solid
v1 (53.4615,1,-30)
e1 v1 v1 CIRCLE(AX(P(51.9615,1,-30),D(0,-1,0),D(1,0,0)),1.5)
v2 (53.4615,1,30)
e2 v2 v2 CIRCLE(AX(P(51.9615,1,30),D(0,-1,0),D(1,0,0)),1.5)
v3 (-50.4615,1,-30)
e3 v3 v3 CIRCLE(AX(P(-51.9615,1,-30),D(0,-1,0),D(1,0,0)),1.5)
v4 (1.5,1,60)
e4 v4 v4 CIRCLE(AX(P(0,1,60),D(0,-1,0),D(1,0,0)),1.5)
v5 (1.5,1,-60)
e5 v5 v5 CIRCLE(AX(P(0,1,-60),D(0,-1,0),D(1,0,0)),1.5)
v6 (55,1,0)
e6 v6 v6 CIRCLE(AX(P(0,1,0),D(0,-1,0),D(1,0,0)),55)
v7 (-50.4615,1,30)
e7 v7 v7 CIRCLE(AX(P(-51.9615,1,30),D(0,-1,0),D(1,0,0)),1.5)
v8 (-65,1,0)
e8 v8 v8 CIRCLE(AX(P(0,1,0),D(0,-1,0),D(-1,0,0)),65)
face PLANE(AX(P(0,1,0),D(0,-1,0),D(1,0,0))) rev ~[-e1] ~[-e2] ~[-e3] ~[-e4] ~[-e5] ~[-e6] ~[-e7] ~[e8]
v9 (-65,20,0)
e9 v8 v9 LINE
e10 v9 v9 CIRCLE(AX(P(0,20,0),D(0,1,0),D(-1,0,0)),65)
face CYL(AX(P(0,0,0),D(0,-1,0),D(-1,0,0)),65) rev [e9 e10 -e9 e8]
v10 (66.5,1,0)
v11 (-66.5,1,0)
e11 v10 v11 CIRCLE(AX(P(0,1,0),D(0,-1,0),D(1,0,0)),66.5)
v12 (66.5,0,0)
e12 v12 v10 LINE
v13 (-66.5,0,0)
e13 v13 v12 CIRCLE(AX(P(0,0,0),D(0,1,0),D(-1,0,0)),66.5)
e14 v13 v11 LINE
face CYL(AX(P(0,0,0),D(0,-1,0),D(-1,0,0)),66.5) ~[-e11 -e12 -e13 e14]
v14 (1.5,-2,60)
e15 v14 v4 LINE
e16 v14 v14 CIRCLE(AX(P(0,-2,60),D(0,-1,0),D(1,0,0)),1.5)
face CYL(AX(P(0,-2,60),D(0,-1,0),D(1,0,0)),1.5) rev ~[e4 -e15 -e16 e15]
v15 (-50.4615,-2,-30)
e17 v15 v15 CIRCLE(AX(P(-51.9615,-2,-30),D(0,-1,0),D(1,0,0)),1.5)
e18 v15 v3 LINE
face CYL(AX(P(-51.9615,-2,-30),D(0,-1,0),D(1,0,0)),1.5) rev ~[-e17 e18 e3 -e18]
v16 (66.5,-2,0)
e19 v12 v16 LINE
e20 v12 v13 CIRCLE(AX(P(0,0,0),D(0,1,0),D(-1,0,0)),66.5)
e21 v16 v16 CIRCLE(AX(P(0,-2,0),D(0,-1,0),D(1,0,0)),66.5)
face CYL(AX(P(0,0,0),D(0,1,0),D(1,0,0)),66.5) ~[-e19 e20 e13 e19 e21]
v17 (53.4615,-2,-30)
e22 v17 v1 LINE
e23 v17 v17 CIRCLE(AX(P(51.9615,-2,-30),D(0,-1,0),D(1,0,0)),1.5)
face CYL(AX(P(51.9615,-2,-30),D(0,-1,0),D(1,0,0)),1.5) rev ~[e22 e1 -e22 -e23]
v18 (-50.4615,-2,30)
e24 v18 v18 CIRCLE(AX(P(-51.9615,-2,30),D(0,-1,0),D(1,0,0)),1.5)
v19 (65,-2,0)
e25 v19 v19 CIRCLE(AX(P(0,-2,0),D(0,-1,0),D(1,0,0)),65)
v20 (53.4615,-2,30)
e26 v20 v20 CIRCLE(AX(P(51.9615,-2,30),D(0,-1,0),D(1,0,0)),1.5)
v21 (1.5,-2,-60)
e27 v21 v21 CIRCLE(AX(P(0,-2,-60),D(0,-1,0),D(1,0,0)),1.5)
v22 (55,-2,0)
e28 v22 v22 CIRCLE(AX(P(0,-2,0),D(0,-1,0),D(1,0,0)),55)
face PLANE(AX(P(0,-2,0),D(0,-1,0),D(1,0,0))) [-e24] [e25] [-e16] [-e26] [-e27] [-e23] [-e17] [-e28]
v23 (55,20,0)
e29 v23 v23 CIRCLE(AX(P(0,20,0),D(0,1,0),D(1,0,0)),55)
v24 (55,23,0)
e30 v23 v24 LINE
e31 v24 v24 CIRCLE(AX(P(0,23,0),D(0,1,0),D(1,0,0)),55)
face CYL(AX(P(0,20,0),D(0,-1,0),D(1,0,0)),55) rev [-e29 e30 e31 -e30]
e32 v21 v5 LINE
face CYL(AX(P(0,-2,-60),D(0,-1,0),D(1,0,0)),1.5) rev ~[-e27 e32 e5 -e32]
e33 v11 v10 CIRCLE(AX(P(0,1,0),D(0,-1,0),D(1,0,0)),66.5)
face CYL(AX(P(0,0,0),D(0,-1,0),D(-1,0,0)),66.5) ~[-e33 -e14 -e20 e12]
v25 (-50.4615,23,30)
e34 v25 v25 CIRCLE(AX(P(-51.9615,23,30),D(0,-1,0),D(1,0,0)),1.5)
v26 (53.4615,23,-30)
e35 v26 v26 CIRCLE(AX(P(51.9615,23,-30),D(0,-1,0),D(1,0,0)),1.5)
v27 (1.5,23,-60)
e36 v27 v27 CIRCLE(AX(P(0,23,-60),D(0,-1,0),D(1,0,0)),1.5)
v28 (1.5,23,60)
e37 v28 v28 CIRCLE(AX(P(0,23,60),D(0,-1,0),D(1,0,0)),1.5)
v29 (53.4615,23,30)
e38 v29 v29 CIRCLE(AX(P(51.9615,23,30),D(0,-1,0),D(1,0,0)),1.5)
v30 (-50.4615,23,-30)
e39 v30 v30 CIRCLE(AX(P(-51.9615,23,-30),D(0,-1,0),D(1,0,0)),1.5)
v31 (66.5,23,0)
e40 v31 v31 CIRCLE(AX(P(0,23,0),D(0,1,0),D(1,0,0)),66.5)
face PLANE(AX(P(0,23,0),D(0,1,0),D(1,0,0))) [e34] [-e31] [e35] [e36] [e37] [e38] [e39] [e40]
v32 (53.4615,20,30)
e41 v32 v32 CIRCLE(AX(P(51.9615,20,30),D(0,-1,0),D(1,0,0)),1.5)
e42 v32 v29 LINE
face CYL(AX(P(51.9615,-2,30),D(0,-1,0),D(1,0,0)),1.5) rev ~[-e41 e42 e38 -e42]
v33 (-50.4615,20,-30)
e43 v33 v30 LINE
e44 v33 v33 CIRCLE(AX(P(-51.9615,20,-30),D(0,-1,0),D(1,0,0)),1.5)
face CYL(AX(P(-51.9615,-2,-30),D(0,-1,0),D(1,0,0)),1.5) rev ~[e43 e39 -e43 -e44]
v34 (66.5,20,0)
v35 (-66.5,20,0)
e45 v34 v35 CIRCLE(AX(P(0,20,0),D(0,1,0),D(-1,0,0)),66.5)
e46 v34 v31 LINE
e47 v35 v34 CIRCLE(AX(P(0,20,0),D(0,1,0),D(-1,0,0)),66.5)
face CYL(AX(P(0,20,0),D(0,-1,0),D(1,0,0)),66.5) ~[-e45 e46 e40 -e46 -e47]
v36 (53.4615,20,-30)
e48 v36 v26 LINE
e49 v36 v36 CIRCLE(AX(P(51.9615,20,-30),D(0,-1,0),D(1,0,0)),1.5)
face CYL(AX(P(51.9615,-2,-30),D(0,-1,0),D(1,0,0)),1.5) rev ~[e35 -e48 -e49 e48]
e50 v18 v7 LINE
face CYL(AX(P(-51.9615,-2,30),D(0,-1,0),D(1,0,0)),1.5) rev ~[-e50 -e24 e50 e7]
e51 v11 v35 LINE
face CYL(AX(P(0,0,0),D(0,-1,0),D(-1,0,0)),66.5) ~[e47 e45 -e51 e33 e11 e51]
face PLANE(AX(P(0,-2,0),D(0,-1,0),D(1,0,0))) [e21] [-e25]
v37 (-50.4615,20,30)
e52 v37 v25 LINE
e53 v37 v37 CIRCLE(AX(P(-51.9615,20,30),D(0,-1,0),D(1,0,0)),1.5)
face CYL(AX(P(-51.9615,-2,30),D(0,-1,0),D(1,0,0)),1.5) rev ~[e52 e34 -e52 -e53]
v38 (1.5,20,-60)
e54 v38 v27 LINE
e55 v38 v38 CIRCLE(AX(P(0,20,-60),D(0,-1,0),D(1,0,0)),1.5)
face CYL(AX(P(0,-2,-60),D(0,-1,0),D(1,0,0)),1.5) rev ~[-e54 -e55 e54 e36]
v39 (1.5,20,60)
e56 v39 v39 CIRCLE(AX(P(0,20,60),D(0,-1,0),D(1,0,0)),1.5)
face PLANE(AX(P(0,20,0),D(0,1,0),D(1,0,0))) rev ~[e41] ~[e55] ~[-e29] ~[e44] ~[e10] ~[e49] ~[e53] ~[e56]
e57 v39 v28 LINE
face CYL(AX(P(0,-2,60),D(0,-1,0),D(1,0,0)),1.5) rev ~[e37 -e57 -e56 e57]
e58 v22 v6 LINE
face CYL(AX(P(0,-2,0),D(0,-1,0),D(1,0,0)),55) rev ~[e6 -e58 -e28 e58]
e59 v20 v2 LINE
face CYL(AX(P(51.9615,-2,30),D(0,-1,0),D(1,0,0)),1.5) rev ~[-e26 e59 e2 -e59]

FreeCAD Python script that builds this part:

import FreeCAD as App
import Part
import Sketcher
Q = App.Units.Quantity

doc = App.newDocument("Part")
params = doc.addObject("Spreadsheet::Sheet", "Params")
for row, (alias, value) in enumerate([
    ("sketch1_diameter", "133 mm"),
    ("sketch1_diameter2", "130 mm"),
    ("pad1_length", "20 mm"),
    ("sketch2_diameter", "3 mm"),
    ("pocket1_length", "3 mm"),
    ("sketch3_diameter", "130 mm"),
    ("sketch3_diameter2", "133 mm"),
    ("pad2_length", "2 mm"),
    ("sketch4_diameter", "133 mm"),
    ("sketch4_diameter2", "110 mm"),
    ("pad3_length", "3 mm"),
    ("sketch5_diameter", "133 mm"),
    ("sketch5_diameter2", "110 mm"),
    ("pad4_length", "3 mm"),
    ("sketch6_diameter", "3 mm"),
    ("pocket2_length", "1000 mm"),
], start=1):
    params.set(f"A{row}", alias)
    params.set(f"B{row}", "=" + value)
    params.setAlias(f"B{row}", alias)

body = doc.addObject("PartDesign::Body", "Body")

sketch1 = body.newObject("Sketcher::SketchObject", "Sketch")
sketch1.AttachmentSupport = (doc.getObject("XZ_Plane"), [""])
sketch1.MapMode = "FlatFace"
sketch1.addGeometry(Part.Circle(App.Vector(0, 0, 0), App.Vector(0, 0, 1), 66), False)
sketch1.addGeometry(Part.Circle(App.Vector(0, 0, 0), App.Vector(0, 0, 1), 65), False)
sketch1.addConstraint(Sketcher.Constraint("Coincident", 0, 3, -1, 1))
sketch1.addConstraint(Sketcher.Constraint("Coincident", 1, 3, -1, 1))
sketch1.addConstraint(Sketcher.Constraint("Diameter", 0, Q("133 mm")))
sketch1.addConstraint(Sketcher.Constraint("Diameter", 1, Q("130 mm")))
sketch1.setExpression("Constraints[2]", "Params.sketch1_diameter")
sketch1.setExpression("Constraints[3]", "Params.sketch1_diameter2")
pad1 = body.newObject("PartDesign::Pad", "Pad")
pad1.Profile = sketch1
pad1.setExpression("Length", "Params.pad1_length")
pad1.Reversed = True

sketch2 = body.newObject("Sketcher::SketchObject", "Sketch001")
sketch2.AttachmentSupport = (doc.getObject("XZ_Plane"), [""])
sketch2.MapMode = "FlatFace"
sketch2.addGeometry(Part.Circle(App.Vector(0, -8, 0), App.Vector(0, 0, 1), 1.5), False)
sketch2.addGeometry(Part.Circle(App.Vector(0, 8, 0), App.Vector(0, 0, 1), 1.5), False)
sketch2.addGeometry(Part.Circle(App.Vector(9.5, 0, 0), App.Vector(0, 0, 1), 1.5), False)
sketch2.addGeometry(Part.Circle(App.Vector(-9.5, 0, 0), App.Vector(0, 0, 1), 1.5), False)
sketch2.addGeometry(Part.Circle(App.Vector(0, 0, 0), App.Vector(0, 0, 1), 3.5), False)
sketch2.addConstraint(Sketcher.Constraint("Coincident", 4, 3, -1, 1))
sketch2.addConstraint(Sketcher.Constraint("Equal", 0, 1))
sketch2.addConstraint(Sketcher.Constraint("Equal", 1, 2))
sketch2.addConstraint(Sketcher.Constraint("Equal", 2, 3))
sketch2.addConstraint(Sketcher.Constraint("Symmetric", 0, 3, 1, 3, -1, 1))
sketch2.addConstraint(Sketcher.Constraint("Symmetric", 2, 3, 3, 3, -1, 1))
sketch2.addConstraint(Sketcher.Constraint("PointOnObject", 0, 3, -2))
sketch2.addConstraint(Sketcher.Constraint("PointOnObject", 2, 3, -1))
sketch2.addConstraint(Sketcher.Constraint("Diameter", 0, Q("3 mm")))
sketch2.addConstraint(Sketcher.Constraint("DistanceY", 0, 3, -1, 1, Q("8 mm")))
sketch2.addConstraint(Sketcher.Constraint("DistanceX", -1, 1, 2, 3, Q("9.5 mm")))
sketch2.addConstraint(Sketcher.Constraint("Diameter", 4, Q("7.0928 mm")))
sketch2.setExpression("Constraints[8]", "Params.sketch2_diameter")
pocket1 = body.newObject("PartDesign::Pocket", "Pocket")
pocket1.Profile = sketch2
pocket1.setExpression("Length", "Params.pocket1_length")

sketch3 = body.newObject("Sketcher::SketchObject", "Sketch002")
sketch3.AttachmentSupport = (doc.getObject("XZ_Plane"), [""])
sketch3.MapMode = "FlatFace"
sketch3.addGeometry(Part.Circle(App.Vector(0, 0, 0), App.Vector(0, 0, 1), 66), False)
sketch3.addGeometry(Part.Circle(App.Vector(0, 0, 0), App.Vector(0, 0, 1), 65), False)
sketch3.addConstraint(Sketcher.Constraint("Coincident", 0, 3, -1, 1))
sketch3.addConstraint(Sketcher.Constraint("Coincident", 1, 3, -1, 1))
sketch3.addConstraint(Sketcher.Constraint("Diameter", 1, Q("130 mm")))
sketch3.addConstraint(Sketcher.Constraint("Diameter", 0, Q("133 mm")))
sketch3.setExpression("Constraints[2]", "Params.sketch3_diameter")
sketch3.setExpression("Constraints[3]", "Params.sketch3_diameter2")
pad2 = body.newObject("PartDesign::Pad", "Pad001")
pad2.Profile = sketch3
pad2.setExpression("Length", "Params.pad2_length")

sketch4 = body.newObject("Sketcher::SketchObject", "Sketch003")
sketch4.AttachmentSupport = (doc.getObject("XZ_Plane"), [""])
sketch4.MapMode = "FlatFace"
sketch4.AttachmentOffset = App.Placement(App.Vector(0, 0, -20), App.Rotation())
sketch4.addGeometry(Part.Circle(App.Vector(0, 0, 0), App.Vector(0, 0, 1), 66), False)
sketch4.addGeometry(Part.Circle(App.Vector(0, 0, 0), App.Vector(0, 0, 1), 55), False)
sketch4.addConstraint(Sketcher.Constraint("Coincident", 0, 3, -1, 1))
sketch4.addConstraint(Sketcher.Constraint("Coincident", 1, 3, -1, 1))
sketch4.addConstraint(Sketcher.Constraint("Diameter", 0, Q("133 mm")))
sketch4.addConstraint(Sketcher.Constraint("Diameter", 1, Q("110 mm")))
sketch4.setExpression("Constraints[2]", "Params.sketch4_diameter")
sketch4.setExpression("Constraints[3]", "Params.sketch4_diameter2")
pad3 = body.newObject("PartDesign::Pad", "Pad002")
pad3.Profile = sketch4
pad3.setExpression("Length", "Params.pad3_length")
pad3.Reversed = True

sketch5 = body.newObject("Sketcher::SketchObject", "Sketch004")
sketch5.AttachmentSupport = (doc.getObject("XZ_Plane"), [""])
sketch5.MapMode = "FlatFace"
sketch5.AttachmentOffset = App.Placement(App.Vector(0, 0, 2), App.Rotation())
sketch5.addGeometry(Part.Circle(App.Vector(0, 0, 0), App.Vector(0, 0, 1), 66), False)
sketch5.addGeometry(Part.Circle(App.Vector(0, 0, 0), App.Vector(0, 0, 1), 55), False)
sketch5.addConstraint(Sketcher.Constraint("Coincident", 0, 3, -1, 1))
sketch5.addConstraint(Sketcher.Constraint("Coincident", 1, 3, -1, 1))
sketch5.addConstraint(Sketcher.Constraint("Diameter", 0, Q("133 mm")))
sketch5.addConstraint(Sketcher.Constraint("Diameter", 1, Q("110 mm")))
sketch5.setExpression("Constraints[2]", "Params.sketch5_diameter")
sketch5.setExpression("Constraints[3]", "Params.sketch5_diameter2")
pad4 = body.newObject("PartDesign::Pad", "Pad003")
pad4.Profile = sketch5
pad4.setExpression("Length", "Params.pad4_length")
pad4.Reversed = True

sketch6 = body.newObject("Sketcher::SketchObject", "Sketch005")
sketch6.AttachmentSupport = (doc.getObject("XZ_Plane"), [""])
sketch6.MapMode = "FlatFace"
sketch6.AttachmentOffset = App.Placement(App.Vector(0, 0, 2), App.Rotation())
sketch6.addGeometry(Part.Circle(App.Vector(0, -60, 0), App.Vector(0, 0, 1), 1.5), False)
sketch6.addGeometry(Part.Circle(App.Vector(52, -30, 0), App.Vector(0, 0, 1), 1.5), False)
sketch6.addGeometry(Part.Circle(App.Vector(52, 30, 0), App.Vector(0, 0, 1), 1.5), False)
sketch6.addGeometry(Part.Circle(App.Vector(0, 60, 0), App.Vector(0, 0, 1), 1.5), False)
sketch6.addGeometry(Part.Circle(App.Vector(-52, 30, 0), App.Vector(0, 0, 1), 1.5), False)
sketch6.addGeometry(Part.Circle(App.Vector(-52, -30, 0), App.Vector(0, 0, 1), 1.5), False)
sketch6.addConstraint(Sketcher.Constraint("Equal", 0, 1))
sketch6.addConstraint(Sketcher.Constraint("Equal", 1, 2))
sketch6.addConstraint(Sketcher.Constraint("Equal", 2, 3))
sketch6.addConstraint(Sketcher.Constraint("Equal", 3, 4))
sketch6.addConstraint(Sketcher.Constraint("Equal", 4, 5))
sketch6.addConstraint(Sketcher.Constraint("Symmetric", 0, 3, 3, 3, -1, 1))
sketch6.addConstraint(Sketcher.Constraint("Symmetric", 1, 3, 4, 3, -1, 1))
sketch6.addConstraint(Sketcher.Constraint("Symmetric", 2, 3, 5, 3, -1, 1))
sketch6.addConstraint(Sketcher.Constraint("Symmetric", 2, 3, 4, 3, -2))
sketch6.addConstraint(Sketcher.Constraint("PointOnObject", 0, 3, -2))
sketch6.addConstraint(Sketcher.Constraint("Diameter", 0, Q("3 mm")))
sketch6.addConstraint(Sketcher.Constraint("DistanceY", 0, 3, -1, 1, Q("60 mm")))
sketch6.addConstraint(Sketcher.Constraint("DistanceY", 1, 3, 2, 3, Q("60 mm")))
sketch6.addConstraint(Sketcher.Constraint("DistanceX", 4, 3, 2, 3, Q("103.923 mm")))
sketch6.setExpression("Constraints[10]", "Params.sketch6_diameter")
pocket2 = body.newObject("PartDesign::Pocket", "Pocket001")
pocket2.Profile = sketch6
pocket2.setExpression("Length", "Params.pocket2_length")

doc.recompute()
